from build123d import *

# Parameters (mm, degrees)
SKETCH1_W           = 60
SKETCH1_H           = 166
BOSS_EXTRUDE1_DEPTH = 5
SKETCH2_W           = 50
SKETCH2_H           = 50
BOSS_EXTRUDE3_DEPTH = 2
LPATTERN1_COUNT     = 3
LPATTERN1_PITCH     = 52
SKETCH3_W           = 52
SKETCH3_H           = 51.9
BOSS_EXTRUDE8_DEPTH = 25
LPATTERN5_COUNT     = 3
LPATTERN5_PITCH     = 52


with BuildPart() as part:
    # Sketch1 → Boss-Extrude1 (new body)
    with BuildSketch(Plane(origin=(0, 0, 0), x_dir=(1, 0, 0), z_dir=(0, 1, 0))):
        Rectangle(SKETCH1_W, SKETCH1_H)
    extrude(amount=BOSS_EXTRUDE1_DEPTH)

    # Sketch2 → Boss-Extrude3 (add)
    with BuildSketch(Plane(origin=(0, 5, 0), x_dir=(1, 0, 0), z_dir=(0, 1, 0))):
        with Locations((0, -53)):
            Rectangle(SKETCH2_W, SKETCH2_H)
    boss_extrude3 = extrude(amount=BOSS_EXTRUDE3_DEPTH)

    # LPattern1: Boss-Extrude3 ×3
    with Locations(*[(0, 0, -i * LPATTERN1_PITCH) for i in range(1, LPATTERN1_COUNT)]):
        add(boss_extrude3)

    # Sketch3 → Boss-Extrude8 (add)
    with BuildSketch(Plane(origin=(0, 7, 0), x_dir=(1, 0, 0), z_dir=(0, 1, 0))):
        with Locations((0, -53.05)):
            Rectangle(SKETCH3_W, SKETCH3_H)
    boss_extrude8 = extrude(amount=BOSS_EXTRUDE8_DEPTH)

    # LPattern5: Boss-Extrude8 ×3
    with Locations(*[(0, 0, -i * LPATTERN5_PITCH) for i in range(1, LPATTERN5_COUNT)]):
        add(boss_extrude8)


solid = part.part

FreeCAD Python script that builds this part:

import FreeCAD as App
import Part
import Sketcher

V = App.Vector

doc = App.newDocument("Part")
body = doc.addObject("PartDesign::Body", "Body")

sketch1 = body.newObject("Sketcher::SketchObject", "Sketch")
sketch1.AttachmentSupport = (doc.getObject("XZ_Plane"), [""])
sketch1.MapMode = "FlatFace"
sketch1.addGeometry(Part.LineSegment(V(-30, -83, 0), V(-30, 83, 0)), False)
sketch1.addGeometry(Part.LineSegment(V(-30, 83, 0), V(30, 83, 0)), False)
sketch1.addGeometry(Part.LineSegment(V(30, 83, 0), V(30, -83, 0)), False)
sketch1.addGeometry(Part.LineSegment(V(30, -83, 0), V(-30, -83, 0)), False)
sketch1.addConstraint(Sketcher.Constraint("Coincident", 0, 2, 1, 1))
sketch1.addConstraint(Sketcher.Constraint("Coincident", 1, 2, 2, 1))
sketch1.addConstraint(Sketcher.Constraint("Coincident", 2, 2, 3, 1))
sketch1.addConstraint(Sketcher.Constraint("Coincident", 3, 2, 0, 1))
sketch1.addConstraint(Sketcher.Constraint("Vertical", 0))
sketch1.addConstraint(Sketcher.Constraint("Horizontal", 1))
sketch1.addConstraint(Sketcher.Constraint("Vertical", 2))
sketch1.addConstraint(Sketcher.Constraint("Horizontal", 3))
sketch1.addConstraint(Sketcher.Constraint("Symmetric", 0, 2, 2, 2, -1, 1))
sketch1.addConstraint(Sketcher.Constraint("DistanceX", 1, 1, 1, 2, 60.0))
sketch1.addConstraint(Sketcher.Constraint("DistanceY", 0, 1, 0, 2, 166.0))
pad1 = body.newObject("PartDesign::Pad", "Pad")
pad1.Profile = sketch1
pad1.Length = 5
pad1.Reversed = True

sketch2 = body.newObject("Sketcher::SketchObject", "Sketch001")
sketch2.AttachmentSupport = (doc.getObject("XZ_Plane"), [""])
sketch2.MapMode = "FlatFace"
sketch2.AttachmentOffset = App.Placement(V(0, 0, -5), App.Rotation())
sketch2.addGeometry(Part.LineSegment(V(-25, 28, 0), V(-25, 78, 0)), False)
sketch2.addGeometry(Part.LineSegment(V(-25, 78, 0), V(25, 78, 0)), False)
sketch2.addGeometry(Part.LineSegment(V(25, 78, 0), V(25, 28, 0)), False)
sketch2.addGeometry(Part.LineSegment(V(25, 28, 0), V(-25, 28, 0)), False)
sketch2.addConstraint(Sketcher.Constraint("Coincident", 0, 2, 1, 1))
sketch2.addConstraint(Sketcher.Constraint("Coincident", 1, 2, 2, 1))
sketch2.addConstraint(Sketcher.Constraint("Coincident", 2, 2, 3, 1))
sketch2.addConstraint(Sketcher.Constraint("Coincident", 3, 2, 0, 1))
sketch2.addConstraint(Sketcher.Constraint("Vertical", 0))
sketch2.addConstraint(Sketcher.Constraint("Horizontal", 1))
sketch2.addConstraint(Sketcher.Constraint("Vertical", 2))
sketch2.addConstraint(Sketcher.Constraint("Horizontal", 3))
sketch2.addConstraint(Sketcher.Constraint("Equal", 3, 0))
sketch2.addConstraint(Sketcher.Constraint("DistanceX", 1, 1, 1, 2, 50.0))
sketch2.addConstraint(Sketcher.Constraint("DistanceX", 0, 2, -1, 1, 25.0))
sketch2.addConstraint(Sketcher.Constraint("DistanceY", -1, 1, 0, 2, 78.0))
pad2 = body.newObject("PartDesign::Pad", "Pad001")
pad2.Profile = sketch2
pad2.Length = 2
pad2.Reversed = True
doc.recompute()

linearpattern = body.newObject("PartDesign::LinearPattern", "LinearPattern")
linearpattern.Originals = [pad2]
linearpattern.Direction = (doc.getObject("Z_Axis"), [""])
linearpattern.Mode = "offset"
linearpattern.Offset = 52
linearpattern.Occurrences = 3
linearpattern.Reversed = True
body.Tip = linearpattern

sketch3 = body.newObject("Sketcher::SketchObject", "Sketch002")
sketch3.AttachmentSupport = (doc.getObject("XZ_Plane"), [""])
sketch3.MapMode = "FlatFace"
sketch3.AttachmentOffset = App.Placement(V(0, 0, -7), App.Rotation())
sketch3.addGeometry(Part.LineSegment(V(-26, 27, 0), V(-26, 79, 0)), False)
sketch3.addGeometry(Part.LineSegment(V(-26, 79, 0), V(26, 79, 0)), False)
sketch3.addGeometry(Part.LineSegment(V(26, 79, 0), V(26, 27, 0)), False)
sketch3.addGeometry(Part.LineSegment(V(26, 27, 0), V(-26, 27, 0)), False)
sketch3.addConstraint(Sketcher.Constraint("Coincident", 0, 2, 1, 1))
sketch3.addConstraint(Sketcher.Constraint("Coincident", 1, 2, 2, 1))
sketch3.addConstraint(Sketcher.Constraint("Coincident", 2, 2, 3, 1))
sketch3.addConstraint(Sketcher.Constraint("Coincident", 3, 2, 0, 1))
sketch3.addConstraint(Sketcher.Constraint("Vertical", 0))
sketch3.addConstraint(Sketcher.Constraint("Horizontal", 1))
sketch3.addConstraint(Sketcher.Constraint("Vertical", 2))
sketch3.addConstraint(Sketcher.Constraint("Horizontal", 3))
sketch3.addConstraint(Sketcher.Constraint("DistanceX", 1, 1, 1, 2, 52.0))
sketch3.addConstraint(Sketcher.Constraint("DistanceY", 0, 1, 0, 2, 51.9))
sketch3.addConstraint(Sketcher.Constraint("DistanceX", 0, 2, -1, 1, 26.0))
sketch3.addConstraint(Sketcher.Constraint("DistanceY", -1, 1, 0, 2, 79.0))
pad3 = body.newObject("PartDesign::Pad", "Pad002")
pad3.Profile = sketch3
pad3.Length = 25
pad3.Reversed = True
doc.recompute()

linearpattern2 = body.newObject("PartDesign::LinearPattern", "LinearPattern001")
linearpattern2.Originals = [pad3]
linearpattern2.Direction = (doc.getObject("Z_Axis"), [""])
linearpattern2.Mode = "offset"
linearpattern2.Offset = 52
linearpattern2.Occurrences = 3
linearpattern2.Reversed = True
body.Tip = linearpattern2

doc.recompute()
